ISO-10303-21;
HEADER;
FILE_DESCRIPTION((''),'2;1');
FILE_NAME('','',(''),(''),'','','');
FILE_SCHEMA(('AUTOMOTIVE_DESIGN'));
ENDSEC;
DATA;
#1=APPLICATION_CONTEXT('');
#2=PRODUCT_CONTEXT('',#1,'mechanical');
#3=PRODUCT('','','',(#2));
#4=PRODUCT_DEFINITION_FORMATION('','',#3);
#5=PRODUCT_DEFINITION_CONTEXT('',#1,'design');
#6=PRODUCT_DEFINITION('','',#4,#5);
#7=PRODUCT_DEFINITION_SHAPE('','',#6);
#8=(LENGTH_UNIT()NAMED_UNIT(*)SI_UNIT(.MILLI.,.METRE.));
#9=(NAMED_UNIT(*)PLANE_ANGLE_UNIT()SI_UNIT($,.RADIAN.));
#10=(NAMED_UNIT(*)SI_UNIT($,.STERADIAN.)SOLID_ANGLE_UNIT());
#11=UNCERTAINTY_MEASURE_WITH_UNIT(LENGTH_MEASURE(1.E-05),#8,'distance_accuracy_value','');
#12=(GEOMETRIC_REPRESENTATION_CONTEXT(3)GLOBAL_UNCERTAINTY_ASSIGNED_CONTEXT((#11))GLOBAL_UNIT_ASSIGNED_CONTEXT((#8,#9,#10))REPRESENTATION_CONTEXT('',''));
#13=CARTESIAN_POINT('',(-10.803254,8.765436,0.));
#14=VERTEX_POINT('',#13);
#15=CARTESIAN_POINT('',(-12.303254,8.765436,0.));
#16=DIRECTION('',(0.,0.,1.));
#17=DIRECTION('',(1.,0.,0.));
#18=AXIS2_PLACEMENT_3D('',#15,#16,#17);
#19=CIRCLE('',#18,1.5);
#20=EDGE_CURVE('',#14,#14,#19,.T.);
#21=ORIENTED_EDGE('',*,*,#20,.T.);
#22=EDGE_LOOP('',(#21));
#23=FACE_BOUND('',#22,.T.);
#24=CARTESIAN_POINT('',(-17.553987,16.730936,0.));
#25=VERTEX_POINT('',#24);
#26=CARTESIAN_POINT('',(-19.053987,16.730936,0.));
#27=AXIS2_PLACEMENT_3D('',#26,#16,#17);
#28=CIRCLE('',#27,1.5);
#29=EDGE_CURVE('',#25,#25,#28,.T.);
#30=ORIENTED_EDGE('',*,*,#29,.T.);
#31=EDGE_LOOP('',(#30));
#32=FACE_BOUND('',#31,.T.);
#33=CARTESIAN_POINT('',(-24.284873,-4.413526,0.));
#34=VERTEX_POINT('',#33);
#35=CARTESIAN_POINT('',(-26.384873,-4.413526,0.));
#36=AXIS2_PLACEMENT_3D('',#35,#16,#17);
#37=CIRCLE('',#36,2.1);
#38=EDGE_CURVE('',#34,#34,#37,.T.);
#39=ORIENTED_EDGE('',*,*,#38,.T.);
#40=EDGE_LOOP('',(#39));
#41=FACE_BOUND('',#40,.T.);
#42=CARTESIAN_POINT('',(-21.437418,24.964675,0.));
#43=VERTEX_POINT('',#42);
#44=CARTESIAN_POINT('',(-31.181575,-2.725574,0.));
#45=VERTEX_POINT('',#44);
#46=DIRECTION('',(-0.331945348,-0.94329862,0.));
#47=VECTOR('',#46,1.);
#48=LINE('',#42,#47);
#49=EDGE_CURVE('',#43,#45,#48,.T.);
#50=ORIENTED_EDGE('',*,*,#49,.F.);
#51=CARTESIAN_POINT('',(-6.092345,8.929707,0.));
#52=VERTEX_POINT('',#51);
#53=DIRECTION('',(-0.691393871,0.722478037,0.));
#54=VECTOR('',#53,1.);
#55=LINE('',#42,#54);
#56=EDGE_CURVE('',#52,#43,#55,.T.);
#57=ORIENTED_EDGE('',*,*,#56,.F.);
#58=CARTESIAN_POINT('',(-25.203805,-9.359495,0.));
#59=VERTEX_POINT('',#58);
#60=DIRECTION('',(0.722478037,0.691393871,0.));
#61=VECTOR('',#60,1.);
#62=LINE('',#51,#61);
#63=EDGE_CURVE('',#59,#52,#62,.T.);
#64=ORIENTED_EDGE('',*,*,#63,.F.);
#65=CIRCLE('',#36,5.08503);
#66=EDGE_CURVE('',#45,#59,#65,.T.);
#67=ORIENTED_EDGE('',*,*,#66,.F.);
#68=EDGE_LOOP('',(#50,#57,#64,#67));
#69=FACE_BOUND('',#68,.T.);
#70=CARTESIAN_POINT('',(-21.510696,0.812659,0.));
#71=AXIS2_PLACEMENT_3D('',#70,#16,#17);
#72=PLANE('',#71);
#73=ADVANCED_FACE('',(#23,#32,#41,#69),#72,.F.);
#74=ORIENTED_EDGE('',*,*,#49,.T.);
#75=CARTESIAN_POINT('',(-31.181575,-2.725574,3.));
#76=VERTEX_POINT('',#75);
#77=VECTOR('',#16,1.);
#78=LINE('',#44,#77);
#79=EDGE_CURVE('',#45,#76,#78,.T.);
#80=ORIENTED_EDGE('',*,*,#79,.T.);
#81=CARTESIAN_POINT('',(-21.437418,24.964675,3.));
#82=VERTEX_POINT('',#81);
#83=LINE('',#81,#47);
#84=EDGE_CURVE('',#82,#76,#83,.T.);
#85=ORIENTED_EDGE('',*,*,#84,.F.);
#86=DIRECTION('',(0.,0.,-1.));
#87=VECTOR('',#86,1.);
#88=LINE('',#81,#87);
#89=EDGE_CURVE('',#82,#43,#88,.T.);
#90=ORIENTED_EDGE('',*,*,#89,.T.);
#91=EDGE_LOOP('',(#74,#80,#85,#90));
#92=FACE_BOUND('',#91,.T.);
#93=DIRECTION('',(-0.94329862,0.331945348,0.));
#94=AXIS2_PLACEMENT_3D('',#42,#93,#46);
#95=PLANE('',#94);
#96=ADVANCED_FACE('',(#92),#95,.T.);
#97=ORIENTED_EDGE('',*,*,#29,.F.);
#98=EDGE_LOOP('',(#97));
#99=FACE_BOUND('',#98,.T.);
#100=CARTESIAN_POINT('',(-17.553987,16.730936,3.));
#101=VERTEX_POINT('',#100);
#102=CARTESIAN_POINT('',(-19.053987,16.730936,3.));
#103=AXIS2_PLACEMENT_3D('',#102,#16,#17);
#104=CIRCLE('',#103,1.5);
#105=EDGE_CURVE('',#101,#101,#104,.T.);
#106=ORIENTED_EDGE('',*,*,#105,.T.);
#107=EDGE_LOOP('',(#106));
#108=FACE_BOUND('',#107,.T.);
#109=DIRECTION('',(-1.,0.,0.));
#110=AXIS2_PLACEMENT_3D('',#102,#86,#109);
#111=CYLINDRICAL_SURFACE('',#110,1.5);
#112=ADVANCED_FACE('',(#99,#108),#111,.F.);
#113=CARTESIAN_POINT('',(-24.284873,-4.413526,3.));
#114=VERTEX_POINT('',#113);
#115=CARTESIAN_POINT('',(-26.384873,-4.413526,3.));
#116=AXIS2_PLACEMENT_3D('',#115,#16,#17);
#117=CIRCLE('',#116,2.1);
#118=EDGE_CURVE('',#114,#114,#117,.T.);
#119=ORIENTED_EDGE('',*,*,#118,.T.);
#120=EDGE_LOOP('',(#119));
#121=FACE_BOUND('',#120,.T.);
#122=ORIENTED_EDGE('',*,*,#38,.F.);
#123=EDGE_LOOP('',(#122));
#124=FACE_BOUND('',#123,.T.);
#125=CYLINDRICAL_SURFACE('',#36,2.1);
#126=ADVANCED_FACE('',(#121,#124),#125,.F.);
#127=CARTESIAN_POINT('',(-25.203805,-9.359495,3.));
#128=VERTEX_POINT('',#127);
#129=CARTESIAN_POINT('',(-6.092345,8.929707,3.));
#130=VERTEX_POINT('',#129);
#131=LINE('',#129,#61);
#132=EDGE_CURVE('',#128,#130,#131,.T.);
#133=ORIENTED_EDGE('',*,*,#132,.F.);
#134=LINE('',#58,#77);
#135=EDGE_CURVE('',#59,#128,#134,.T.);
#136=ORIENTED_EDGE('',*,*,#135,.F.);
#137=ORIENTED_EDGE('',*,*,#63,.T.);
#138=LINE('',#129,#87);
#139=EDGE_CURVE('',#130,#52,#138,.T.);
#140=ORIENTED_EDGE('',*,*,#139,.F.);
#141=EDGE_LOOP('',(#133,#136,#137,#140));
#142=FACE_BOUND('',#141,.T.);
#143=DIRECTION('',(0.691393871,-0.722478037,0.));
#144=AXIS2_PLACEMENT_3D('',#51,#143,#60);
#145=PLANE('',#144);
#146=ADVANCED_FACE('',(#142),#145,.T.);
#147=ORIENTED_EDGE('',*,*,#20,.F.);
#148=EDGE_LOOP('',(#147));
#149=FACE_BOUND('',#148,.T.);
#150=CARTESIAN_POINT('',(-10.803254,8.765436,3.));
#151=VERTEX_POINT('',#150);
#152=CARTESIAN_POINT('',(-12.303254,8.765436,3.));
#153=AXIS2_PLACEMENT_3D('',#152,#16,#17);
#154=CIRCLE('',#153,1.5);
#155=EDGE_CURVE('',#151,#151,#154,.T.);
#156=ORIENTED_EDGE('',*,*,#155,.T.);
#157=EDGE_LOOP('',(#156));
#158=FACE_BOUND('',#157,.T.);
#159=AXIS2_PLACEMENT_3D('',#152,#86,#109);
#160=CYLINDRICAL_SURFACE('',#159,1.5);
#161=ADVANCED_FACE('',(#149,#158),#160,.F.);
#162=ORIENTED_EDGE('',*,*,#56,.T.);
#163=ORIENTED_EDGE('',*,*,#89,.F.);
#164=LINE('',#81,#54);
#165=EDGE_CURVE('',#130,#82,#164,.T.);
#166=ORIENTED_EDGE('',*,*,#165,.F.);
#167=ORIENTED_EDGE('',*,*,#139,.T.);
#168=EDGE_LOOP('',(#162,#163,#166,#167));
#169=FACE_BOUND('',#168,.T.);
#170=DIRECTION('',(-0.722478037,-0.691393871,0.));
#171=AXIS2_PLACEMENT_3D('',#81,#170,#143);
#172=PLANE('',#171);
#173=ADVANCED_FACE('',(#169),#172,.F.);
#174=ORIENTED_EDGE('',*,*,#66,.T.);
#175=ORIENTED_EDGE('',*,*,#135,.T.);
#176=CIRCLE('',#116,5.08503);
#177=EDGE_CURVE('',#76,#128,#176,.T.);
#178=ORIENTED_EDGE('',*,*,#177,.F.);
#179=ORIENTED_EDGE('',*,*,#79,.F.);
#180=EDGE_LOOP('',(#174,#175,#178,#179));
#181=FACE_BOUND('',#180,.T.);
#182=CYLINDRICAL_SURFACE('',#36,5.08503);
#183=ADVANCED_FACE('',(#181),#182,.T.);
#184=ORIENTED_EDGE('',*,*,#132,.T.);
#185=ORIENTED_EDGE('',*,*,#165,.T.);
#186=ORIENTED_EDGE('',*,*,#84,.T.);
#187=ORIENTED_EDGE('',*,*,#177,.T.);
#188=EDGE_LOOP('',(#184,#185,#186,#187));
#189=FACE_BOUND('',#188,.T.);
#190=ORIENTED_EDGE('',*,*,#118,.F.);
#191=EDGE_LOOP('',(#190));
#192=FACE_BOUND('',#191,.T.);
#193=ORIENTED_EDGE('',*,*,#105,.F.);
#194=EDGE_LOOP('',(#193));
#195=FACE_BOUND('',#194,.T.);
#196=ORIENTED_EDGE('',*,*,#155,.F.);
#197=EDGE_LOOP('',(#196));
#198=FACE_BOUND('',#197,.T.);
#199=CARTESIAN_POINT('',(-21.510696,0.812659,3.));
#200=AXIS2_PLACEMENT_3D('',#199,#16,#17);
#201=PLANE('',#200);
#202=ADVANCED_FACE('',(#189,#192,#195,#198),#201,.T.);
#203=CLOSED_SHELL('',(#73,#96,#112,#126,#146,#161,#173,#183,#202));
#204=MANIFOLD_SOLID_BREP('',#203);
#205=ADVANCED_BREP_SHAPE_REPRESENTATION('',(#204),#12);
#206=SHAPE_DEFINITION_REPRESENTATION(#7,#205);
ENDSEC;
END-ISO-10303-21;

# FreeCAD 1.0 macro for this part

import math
import FreeCAD as App
import Part
import Sketcher
from FreeCAD import Vector
Q = App.Units.Quantity

doc = App.newDocument("Part")
body = doc.addObject("PartDesign::Body", "Body")

# Sketch on XY plane
sketch1 = body.newObject("Sketcher::SketchObject", "Sketch")
sketch1.AttachmentSupport = (doc.getObject("XY_Plane"), [""])
sketch1.MapMode = "FlatFace"
sketch1.addGeometry(Part.LineSegment(Vector(-23.8, 12.3, 0), Vector(-25.8, 1.6, 0)), False)
sketch1.addGeometry(Part.ArcOfCircle(Part.Circle(Vector(-21.5, 0.8, 0), Vector(0, 0, 1), 4.4), math.radians(170), math.radians(312)), False)
sketch1.addGeometry(Part.LineSegment(Vector(-18.6, -2.4, 0), Vector(-9.6, 5.8, 0)), False)
sketch1.addGeometry(Part.LineSegment(Vector(-9.6, 5.8, 0), Vector(-6.1, 8.9, 0)), False)
sketch1.addGeometry(Part.LineSegment(Vector(-6.1, 8.9, 0), Vector(-21.4, 25, 0)), False)
sketch1.addGeometry(Part.LineSegment(Vector(-21.4, 25, 0), Vector(-22, 21.8, 0)), False)
sketch1.addGeometry(Part.LineSegment(Vector(-22, 21.8, 0), Vector(-23.8, 12.3, 0)), False)
sketch1.addGeometry(Part.Circle(Vector(-12.3, 8.8, 0), Vector(0, 0, 1), 1.5), False)
sketch1.addGeometry(Part.Circle(Vector(-19.1, 16.7, 0), Vector(0, 0, 1), 1.5), False)
sketch1.addConstraint(Sketcher.Constraint("Tangent", 0, 2, 1, 1))
sketch1.addConstraint(Sketcher.Constraint("Tangent", 1, 2, 2, 1))
sketch1.addConstraint(Sketcher.Constraint("Coincident", 2, 2, 3, 1))
sketch1.addConstraint(Sketcher.Constraint("Coincident", 3, 2, 4, 1))
sketch1.addConstraint(Sketcher.Constraint("Coincident", 4, 2, 5, 1))
sketch1.addConstraint(Sketcher.Constraint("Coincident", 5, 2, 6, 1))
sketch1.addConstraint(Sketcher.Constraint("Coincident", 6, 2, 0, 1))
sketch1.addConstraint(Sketcher.Constraint("Equal", 7, 8))
sketch1.addConstraint(Sketcher.Constraint("Parallel", 2, 3))
sketch1.addConstraint(Sketcher.Constraint("Parallel", 5, 6))
sketch1.addConstraint(Sketcher.Constraint("Diameter", 7, Q("3 mm")))
sketch1.addConstraint(Sketcher.Constraint("Radius", 1, Q("4.35 mm")))
sketch1.addConstraint(Sketcher.Constraint("DistanceY", 1, 3, 2, 2, Q("4.974998 mm")))
sketch1.addConstraint(Sketcher.Constraint("Distance", 4, Q("22.194402 mm")))
sketch1.addConstraint(Sketcher.Constraint("DistanceY", 7, 3, 8, 3, Q("7.9655 mm")))
sketch1.addConstraint(Sketcher.Constraint("Distance", 6, Q("9.626641 mm")))
sketch1.addConstraint(Sketcher.Constraint("DistanceY", -1, 1, 1, 3, Q("0.812659 mm")))
sketch1.addConstraint(Sketcher.Constraint("DistanceY", -1, 1, 0, 2, Q("1.58842 mm")))
sketch1.addConstraint(Sketcher.Constraint("DistanceX", 4, 2, -1, 1, Q("21.437418 mm")))
sketch1.addConstraint(Sketcher.Constraint("DistanceX", 6, 2, -1, 1, Q("23.846751 mm")))
sketch1.addConstraint(Sketcher.Constraint("DistanceX", 1, 3, 8, 3, Q("2.45671 mm")))
sketch1.addConstraint(Sketcher.Constraint("DistanceX", 0, 2, 7, 3, Q("13.48771 mm")))
sketch1.addConstraint(Sketcher.Constraint("DistanceX", 1, 3, 1, 2, Q("2.923192 mm")))
sketch1.addConstraint(Sketcher.Constraint("DistanceY", 2, 2, 7, 3, Q("2.977779 mm")))
sketch1.addConstraint(Sketcher.Constraint("DistanceX", 2, 2, 3, 2, Q("3.46259 mm")))
sketch1.addConstraint(Sketcher.Constraint("DistanceX", 4, 2, 8, 3, Q("2.383431 mm")))
pad1 = body.newObject("PartDesign::Pad", "Pad")
pad1.Profile = sketch1
pad1.Length = 3

# Sketch on XY plane
sketch2 = body.newObject("Sketcher::SketchObject", "Sketch001")
sketch2.AttachmentSupport = (doc.getObject("XY_Plane"), [""])
sketch2.MapMode = "FlatFace"
sketch2.AttachmentOffset = App.Placement(Vector(0, 0, 3), App.Rotation())
sketch2.addGeometry(Part.Circle(Vector(-21.5, 0.8, 0), Vector(0, 0, 1), 2.1), False)
sketch2.addConstraint(Sketcher.Constraint("Diameter", 0, Q("4.2 mm")))
sketch2.addConstraint(Sketcher.Constraint("DistanceX", 0, 3, -1, 1, Q("21.512746 mm")))
sketch2.addConstraint(Sketcher.Constraint("DistanceY", -1, 1, 0, 3, Q("0.809674 mm")))
pocket1 = body.newObject("PartDesign::Pocket", "Pocket")
pocket1.Profile = sketch2
pocket1.Length = 5

# Sketch on XY plane
sketch3 = body.newObject("Sketcher::SketchObject", "Sketch002")
sketch3.AttachmentSupport = (doc.getObject("XY_Plane"), [""])
sketch3.MapMode = "FlatFace"
sketch3.addGeometry(Part.LineSegment(Vector(-6.1, 8.9, 0), Vector(-21.4, 25, 0)), False)
sketch3.addGeometry(Part.LineSegment(Vector(-21.4, 25, 0), Vector(-31.2, -2.7, 0)), False)
sketch3.addGeometry(Part.ArcOfCircle(Part.Circle(Vector(-26.4, -4.4, 0), Vector(0, 0, 1), 5.1), math.radians(161), math.radians(283)), False)
sketch3.addGeometry(Part.LineSegment(Vector(-25.2, -9.4, 0), Vector(-6.1, 8.9, 0)), False)
sketch3.addGeometry(Part.Circle(Vector(-26.4, -4.4, 0), Vector(0, 0, 1), 2.1), False)
sketch3.addGeometry(Part.Circle(Vector(-12.3, 8.8, 0), Vector(0, 0, 1), 1.5), False)
sketch3.addGeometry(Part.Circle(Vector(-19.1, 16.7, 0), Vector(0, 0, 1), 1.5), False)
sketch3.addConstraint(Sketcher.Constraint("Coincident", 0, 2, 1, 1))
sketch3.addConstraint(Sketcher.Constraint("Tangent", 1, 2, 2, 1))
sketch3.addConstraint(Sketcher.Constraint("Coincident", 2, 2, 3, 1))
sketch3.addConstraint(Sketcher.Constraint("Coincident", 3, 2, 0, 1))
sketch3.addConstraint(Sketcher.Constraint("Coincident", 4, 3, 2, 3))
sketch3.addConstraint(Sketcher.Constraint("Equal", 5, 6))
sketch3.addConstraint(Sketcher.Constraint("Perpendicular", 0, 3))
sketch3.addConstraint(Sketcher.Constraint("Diameter", 5, Q("3 mm")))
sketch3.addConstraint(Sketcher.Constraint("Diameter", 4, Q("4.2 mm")))
sketch3.addConstraint(Sketcher.Constraint("Radius", 2, Q("5.08503 mm")))
sketch3.addConstraint(Sketcher.Constraint("Distance", 0, Q("22.194402 mm")))
sketch3.addConstraint(Sketcher.Constraint("Distance", 1, Q("29.354701 mm")))
sketch3.addConstraint(Sketcher.Constraint("DistanceY", 5, 3, 6, 3, Q("7.9655 mm")))
sketch3.addConstraint(Sketcher.Constraint("DistanceY", 2, 3, 0, 2, Q("29.378201 mm")))
sketch3.addConstraint(Sketcher.Constraint("DistanceX", 0, 2, -1, 1, Q("21.437418 mm")))
sketch3.addConstraint(Sketcher.Constraint("DistanceX", 2, 3, 5, 3, Q("14.081619 mm")))
sketch3.addConstraint(Sketcher.Constraint("DistanceX", 0, 2, 6, 3, Q("2.383431 mm")))
sketch3.addConstraint(Sketcher.Constraint("DistanceY", 6, 3, 0, 2, Q("8.233739 mm")))
sketch3.addConstraint(Sketcher.Constraint("DistanceY", 2, 2, 2, 3, Q("4.945969 mm")))
sketch3.addConstraint(Sketcher.Constraint("DistanceY", 2, 3, -1, 1, Q("4.413526 mm")))
pad2 = body.newObject("PartDesign::Pad", "Pad001")
pad2.Profile = sketch3
pad2.Length = 3

doc.recompute()
